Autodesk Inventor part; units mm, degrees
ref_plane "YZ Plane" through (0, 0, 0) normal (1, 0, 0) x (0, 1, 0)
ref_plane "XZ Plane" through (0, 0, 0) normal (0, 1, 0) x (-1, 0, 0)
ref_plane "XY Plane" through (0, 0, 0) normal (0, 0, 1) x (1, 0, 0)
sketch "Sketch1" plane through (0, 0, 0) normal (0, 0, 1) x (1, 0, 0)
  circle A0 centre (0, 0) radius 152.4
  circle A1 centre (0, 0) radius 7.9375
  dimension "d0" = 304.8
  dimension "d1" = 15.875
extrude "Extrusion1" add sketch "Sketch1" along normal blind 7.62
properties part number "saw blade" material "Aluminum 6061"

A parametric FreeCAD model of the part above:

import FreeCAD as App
import Part
import Sketcher
from FreeCAD import Vector
Q = App.Units.Quantity

doc = App.newDocument("Part")
body = doc.addObject("PartDesign::Body", "Body")

# Sketch on XY plane
sketch1 = doc.addObject("Sketcher::SketchObject", "Sketch")
body.addObject(sketch1)
sketch1.AttachmentSupport = (doc.XY_Plane, [""])
sketch1.MapMode = "FlatFace"
sketch1.addGeometry(Part.Circle(Vector(0, 0, 0), Vector(0, 0, 1), 152.4), False)
sketch1.addGeometry(Part.Circle(Vector(0, 0, 0), Vector(0, 0, 1), 7.9375), False)
sketch1.addConstraint(Sketcher.Constraint("Coincident", 0, 3, -1, 1))
sketch1.addConstraint(Sketcher.Constraint("Coincident", 1, 3, -1, 1))
sketch1.addConstraint(Sketcher.Constraint("Diameter", 0, Q("12 in")))
sketch1.addConstraint(Sketcher.Constraint("Diameter", 1, Q("0.625 in")))
pad1 = doc.addObject("PartDesign::Pad", "Pad")
body.addObject(pad1)
pad1.Profile = sketch1
pad1.Length = Q("0.3 in")

doc.recompute()
